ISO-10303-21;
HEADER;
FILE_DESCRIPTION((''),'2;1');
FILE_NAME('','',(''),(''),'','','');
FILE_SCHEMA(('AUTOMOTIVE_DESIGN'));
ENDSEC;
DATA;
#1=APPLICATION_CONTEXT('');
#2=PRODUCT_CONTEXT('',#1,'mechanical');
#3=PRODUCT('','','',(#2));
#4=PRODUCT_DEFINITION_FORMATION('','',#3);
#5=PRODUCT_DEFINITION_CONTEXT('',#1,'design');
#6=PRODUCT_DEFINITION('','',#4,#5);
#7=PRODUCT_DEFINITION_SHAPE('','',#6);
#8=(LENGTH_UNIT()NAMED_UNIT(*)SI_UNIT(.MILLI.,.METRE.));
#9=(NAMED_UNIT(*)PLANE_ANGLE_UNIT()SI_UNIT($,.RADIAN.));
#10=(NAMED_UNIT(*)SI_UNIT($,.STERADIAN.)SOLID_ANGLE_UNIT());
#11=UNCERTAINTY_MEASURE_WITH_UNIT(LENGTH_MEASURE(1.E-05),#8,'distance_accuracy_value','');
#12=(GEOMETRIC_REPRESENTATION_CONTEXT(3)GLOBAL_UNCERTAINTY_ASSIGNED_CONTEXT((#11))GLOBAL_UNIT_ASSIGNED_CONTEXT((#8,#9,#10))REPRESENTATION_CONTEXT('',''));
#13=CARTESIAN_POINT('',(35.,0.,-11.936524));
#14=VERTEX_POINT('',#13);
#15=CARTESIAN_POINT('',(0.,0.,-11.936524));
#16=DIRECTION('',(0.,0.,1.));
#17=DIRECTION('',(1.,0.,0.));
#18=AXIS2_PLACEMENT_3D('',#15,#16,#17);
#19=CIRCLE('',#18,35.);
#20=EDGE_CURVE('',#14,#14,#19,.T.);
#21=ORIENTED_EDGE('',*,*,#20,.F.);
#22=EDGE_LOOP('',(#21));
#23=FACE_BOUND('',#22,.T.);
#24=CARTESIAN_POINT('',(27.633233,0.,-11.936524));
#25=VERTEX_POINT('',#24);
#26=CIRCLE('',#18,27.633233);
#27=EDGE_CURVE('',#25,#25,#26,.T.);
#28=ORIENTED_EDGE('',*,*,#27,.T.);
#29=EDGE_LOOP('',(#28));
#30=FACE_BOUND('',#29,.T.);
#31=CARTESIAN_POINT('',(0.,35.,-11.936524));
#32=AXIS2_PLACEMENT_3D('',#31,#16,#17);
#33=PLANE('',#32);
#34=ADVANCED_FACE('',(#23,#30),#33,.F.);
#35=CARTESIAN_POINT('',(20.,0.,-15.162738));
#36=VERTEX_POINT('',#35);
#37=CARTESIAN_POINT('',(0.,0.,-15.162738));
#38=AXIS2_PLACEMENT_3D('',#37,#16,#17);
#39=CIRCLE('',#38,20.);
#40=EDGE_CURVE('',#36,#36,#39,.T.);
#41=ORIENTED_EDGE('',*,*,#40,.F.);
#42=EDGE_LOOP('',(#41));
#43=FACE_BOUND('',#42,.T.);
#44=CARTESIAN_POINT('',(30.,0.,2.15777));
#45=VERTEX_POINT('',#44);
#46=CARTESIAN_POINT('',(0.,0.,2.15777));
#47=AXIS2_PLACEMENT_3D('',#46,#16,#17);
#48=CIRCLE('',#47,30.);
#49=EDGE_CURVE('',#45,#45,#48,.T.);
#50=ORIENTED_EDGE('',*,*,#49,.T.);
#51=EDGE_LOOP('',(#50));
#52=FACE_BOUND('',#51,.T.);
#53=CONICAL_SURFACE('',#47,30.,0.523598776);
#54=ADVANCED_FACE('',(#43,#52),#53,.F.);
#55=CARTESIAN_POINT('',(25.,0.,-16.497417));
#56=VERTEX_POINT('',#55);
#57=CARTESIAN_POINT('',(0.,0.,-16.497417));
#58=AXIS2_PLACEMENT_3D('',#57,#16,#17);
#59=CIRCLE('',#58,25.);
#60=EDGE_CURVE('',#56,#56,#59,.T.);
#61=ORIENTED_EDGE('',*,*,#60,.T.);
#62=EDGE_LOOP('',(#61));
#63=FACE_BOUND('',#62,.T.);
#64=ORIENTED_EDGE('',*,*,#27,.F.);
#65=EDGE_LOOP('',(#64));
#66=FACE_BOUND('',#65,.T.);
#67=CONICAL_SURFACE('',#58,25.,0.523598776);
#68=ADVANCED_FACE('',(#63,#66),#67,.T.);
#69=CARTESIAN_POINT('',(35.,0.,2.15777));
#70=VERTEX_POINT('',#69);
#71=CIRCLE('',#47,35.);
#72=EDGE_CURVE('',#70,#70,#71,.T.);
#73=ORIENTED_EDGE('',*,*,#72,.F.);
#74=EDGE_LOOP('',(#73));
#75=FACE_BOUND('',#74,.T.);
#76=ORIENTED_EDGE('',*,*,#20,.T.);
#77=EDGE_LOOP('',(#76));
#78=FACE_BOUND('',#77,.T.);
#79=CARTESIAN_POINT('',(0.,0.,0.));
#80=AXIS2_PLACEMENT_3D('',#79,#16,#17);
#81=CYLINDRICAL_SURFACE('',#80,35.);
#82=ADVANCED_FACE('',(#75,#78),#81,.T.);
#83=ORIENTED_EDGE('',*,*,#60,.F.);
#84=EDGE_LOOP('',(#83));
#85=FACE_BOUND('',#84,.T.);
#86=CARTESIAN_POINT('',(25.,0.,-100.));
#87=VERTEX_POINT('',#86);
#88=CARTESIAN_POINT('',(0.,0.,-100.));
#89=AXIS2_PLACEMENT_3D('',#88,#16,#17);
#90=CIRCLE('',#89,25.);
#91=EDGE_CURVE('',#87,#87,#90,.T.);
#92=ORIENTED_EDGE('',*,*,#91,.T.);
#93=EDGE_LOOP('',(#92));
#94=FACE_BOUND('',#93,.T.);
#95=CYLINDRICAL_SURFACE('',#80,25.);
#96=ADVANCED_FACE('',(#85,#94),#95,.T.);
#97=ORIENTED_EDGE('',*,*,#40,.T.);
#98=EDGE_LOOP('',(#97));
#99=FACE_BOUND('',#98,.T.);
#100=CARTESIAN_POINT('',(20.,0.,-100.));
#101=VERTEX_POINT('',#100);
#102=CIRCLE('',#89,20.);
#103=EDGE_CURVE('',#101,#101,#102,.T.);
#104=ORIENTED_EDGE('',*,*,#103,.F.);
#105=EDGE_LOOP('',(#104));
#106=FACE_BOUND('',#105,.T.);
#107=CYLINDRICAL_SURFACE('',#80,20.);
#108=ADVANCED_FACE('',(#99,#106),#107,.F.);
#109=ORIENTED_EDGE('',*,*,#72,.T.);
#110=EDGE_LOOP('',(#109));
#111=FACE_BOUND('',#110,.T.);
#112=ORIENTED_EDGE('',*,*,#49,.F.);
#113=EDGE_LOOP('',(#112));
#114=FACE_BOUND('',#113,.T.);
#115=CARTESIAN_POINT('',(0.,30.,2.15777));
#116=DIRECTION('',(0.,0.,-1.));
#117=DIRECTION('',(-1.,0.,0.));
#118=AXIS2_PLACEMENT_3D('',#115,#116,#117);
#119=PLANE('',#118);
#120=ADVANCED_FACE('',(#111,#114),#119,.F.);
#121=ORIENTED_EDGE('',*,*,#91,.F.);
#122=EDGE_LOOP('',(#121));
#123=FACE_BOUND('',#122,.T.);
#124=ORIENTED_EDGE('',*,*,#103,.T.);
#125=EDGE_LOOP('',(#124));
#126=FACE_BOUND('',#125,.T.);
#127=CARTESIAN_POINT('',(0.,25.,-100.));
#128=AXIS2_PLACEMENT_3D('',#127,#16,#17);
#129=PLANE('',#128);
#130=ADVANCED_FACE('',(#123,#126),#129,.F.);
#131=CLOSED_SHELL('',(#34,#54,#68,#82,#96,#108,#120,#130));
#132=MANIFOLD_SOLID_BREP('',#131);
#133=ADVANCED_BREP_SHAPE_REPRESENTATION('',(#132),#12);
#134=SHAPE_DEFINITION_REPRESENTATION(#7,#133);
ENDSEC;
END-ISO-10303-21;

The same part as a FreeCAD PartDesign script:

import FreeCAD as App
import Part
import Sketcher
Q = App.Units.Quantity

doc = App.newDocument("Part")
params = doc.addObject("Spreadsheet::Sheet", "Params")
for row, (alias, value) in enumerate([
    ("sketch1_width", "5 mm"),
    ("sketch1_length", "20 mm"),
    ("revolution_angle", "360 deg"),
], start=1):
    params.set(f"A{row}", alias)
    params.set(f"B{row}", "=" + value)
    params.setAlias(f"B{row}", alias)

body = doc.addObject("PartDesign::Body", "Body")

# Sketch on YZ plane
sketch1 = body.newObject("Sketcher::SketchObject", "Sketch")
sketch1.AttachmentSupport = (doc.getObject("YZ_Plane"), [""])
sketch1.MapMode = "FlatFace"
sketch1.addGeometry([
    Part.LineSegment(App.Vector(25, -100, 0), App.Vector(25, -16, 0)),  # 0
    Part.LineSegment(App.Vector(25, -16, 0), App.Vector(28, -12, 0)),  # 1
    Part.LineSegment(App.Vector(28, -12, 0), App.Vector(35, -12, 0)),  # 2
    Part.LineSegment(App.Vector(35, -12, 0), App.Vector(35, 2, 0)),  # 3
    Part.LineSegment(App.Vector(35, 2, 0), App.Vector(30, 2, 0)),  # 4
    Part.LineSegment(App.Vector(30, 2, 0), App.Vector(20, -15, 0)),  # 5
    Part.LineSegment(App.Vector(20, -15, 0), App.Vector(20, -100, 0)),  # 6
    Part.LineSegment(App.Vector(20, -100, 0), App.Vector(25, -100, 0)),  # 7
], False)
sketch1.addConstraint([
    Sketcher.Constraint("Coincident", 0, 2, 1, 1),
    Sketcher.Constraint("Coincident", 1, 2, 2, 1),
    Sketcher.Constraint("Coincident", 2, 2, 3, 1),
    Sketcher.Constraint("Coincident", 3, 2, 4, 1),
    Sketcher.Constraint("Coincident", 4, 2, 5, 1),
    Sketcher.Constraint("Coincident", 5, 2, 6, 1),
    Sketcher.Constraint("Coincident", 6, 2, 7, 1),
    Sketcher.Constraint("Coincident", 7, 2, 0, 1),
    Sketcher.Constraint("Vertical", 0),
    Sketcher.Constraint("Horizontal", 2),
    Sketcher.Constraint("Vertical", 3),
    Sketcher.Constraint("Horizontal", 4),
    Sketcher.Constraint("Vertical", 6),
    Sketcher.Constraint("Horizontal", 7),
    Sketcher.Constraint("Parallel", 1, 5),
    Sketcher.Constraint("Equal", 4, 7),
    Sketcher.Constraint("DistanceX", 4, 2, 4, 1, 5.0),
    Sketcher.Constraint("Angle", 1, Q("60 deg")),
    Sketcher.Constraint("Distance", 5, 20.0),
    Sketcher.Constraint("DistanceX", -1, 1, 0, 2, 25.0),
    Sketcher.Constraint("DistanceY", 6, 2, -1, 1, 100.0),
    Sketcher.Constraint("DistanceX", 2, 1, 2, 2, 7.366767),
    Sketcher.Constraint("DistanceY", 0, 1, 0, 2, 83.502583),
    Sketcher.Constraint("DistanceY", 3, 1, 3, 2, 14.094294),
])
sketch1.setExpression("Constraints[16]", "Params.sketch1_width")
sketch1.setExpression("Constraints[18]", "Params.sketch1_length")
revolution = body.newObject("PartDesign::Revolution", "Revolution")
revolution.Profile = sketch1
revolution.ReferenceAxis = (sketch1, ["V_Axis"])
revolution.setExpression("Angle", "Params.revolution_angle")

doc.recompute()
